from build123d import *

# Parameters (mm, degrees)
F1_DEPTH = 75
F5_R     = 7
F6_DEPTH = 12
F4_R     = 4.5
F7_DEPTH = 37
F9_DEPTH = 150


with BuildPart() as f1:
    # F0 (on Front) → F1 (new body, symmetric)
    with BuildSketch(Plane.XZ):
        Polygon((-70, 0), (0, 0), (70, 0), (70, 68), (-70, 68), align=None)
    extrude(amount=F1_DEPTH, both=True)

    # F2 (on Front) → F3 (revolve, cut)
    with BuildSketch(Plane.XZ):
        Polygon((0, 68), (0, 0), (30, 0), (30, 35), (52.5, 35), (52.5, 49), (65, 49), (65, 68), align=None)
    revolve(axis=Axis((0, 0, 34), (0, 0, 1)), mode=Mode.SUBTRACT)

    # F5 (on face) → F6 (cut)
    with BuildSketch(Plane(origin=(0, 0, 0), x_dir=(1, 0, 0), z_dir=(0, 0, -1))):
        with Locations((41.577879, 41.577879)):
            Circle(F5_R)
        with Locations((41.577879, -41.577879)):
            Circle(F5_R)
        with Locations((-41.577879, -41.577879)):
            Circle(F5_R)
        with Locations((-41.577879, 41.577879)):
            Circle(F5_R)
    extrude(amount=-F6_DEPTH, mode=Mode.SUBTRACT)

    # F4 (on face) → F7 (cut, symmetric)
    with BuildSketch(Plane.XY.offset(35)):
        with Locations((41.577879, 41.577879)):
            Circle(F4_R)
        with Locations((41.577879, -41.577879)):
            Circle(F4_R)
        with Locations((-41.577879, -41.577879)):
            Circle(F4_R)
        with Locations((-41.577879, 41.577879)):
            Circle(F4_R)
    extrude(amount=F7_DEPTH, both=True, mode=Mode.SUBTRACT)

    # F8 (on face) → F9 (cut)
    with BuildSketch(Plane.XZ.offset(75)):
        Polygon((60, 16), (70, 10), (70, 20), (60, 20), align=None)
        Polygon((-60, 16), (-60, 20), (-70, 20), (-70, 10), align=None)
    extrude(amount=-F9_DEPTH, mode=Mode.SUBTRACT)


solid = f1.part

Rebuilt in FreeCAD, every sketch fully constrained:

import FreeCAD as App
import Part
import Sketcher

doc = App.newDocument("Part")
body = doc.addObject("PartDesign::Body", "Body")

# Sketch on XZ plane
sketch1 = body.newObject("Sketcher::SketchObject", "Sketch")
sketch1.AttachmentSupport = (doc.getObject("XZ_Plane"), [""])
sketch1.MapMode = "FlatFace"
sketch1.addGeometry([
    Part.LineSegment(App.Vector(-70, 0, 0), App.Vector(70, 0, 0)),
    Part.LineSegment(App.Vector(70, 0, 0), App.Vector(70, 68, 0)),
    Part.LineSegment(App.Vector(70, 68, 0), App.Vector(-70, 68, 0)),
    Part.LineSegment(App.Vector(-70, 68, 0), App.Vector(-70, 0, 0)),
], False)
sketch1.addConstraint([
    Sketcher.Constraint("Coincident", 0, 2, 1, 1),
    Sketcher.Constraint("Coincident", 1, 2, 2, 1),
    Sketcher.Constraint("Coincident", 2, 2, 3, 1),
    Sketcher.Constraint("Coincident", 3, 2, 0, 1),
    Sketcher.Constraint("Horizontal", 0),
    Sketcher.Constraint("Vertical", 1),
    Sketcher.Constraint("Horizontal", 2),
    Sketcher.Constraint("Vertical", 3),
    Sketcher.Constraint("Symmetric", 0, 2, 3, 2, -1, 1),
    Sketcher.Constraint("DistanceX", 0, 1, 0, 2, 140.0),
    Sketcher.Constraint("DistanceY", 1, 1, 1, 2, 68.0),
])
pad1 = body.newObject("PartDesign::Pad", "Pad")
pad1.Profile = sketch1
pad1.Length = 150
pad1.Midplane = True

# Sketch on XZ plane
sketch2 = body.newObject("Sketcher::SketchObject", "Sketch001")
sketch2.AttachmentSupport = (doc.getObject("XZ_Plane"), [""])
sketch2.MapMode = "FlatFace"
sketch2.addGeometry([
    Part.LineSegment(App.Vector(0, 68, 0), App.Vector(0, 0, 0)),  # 0
    Part.LineSegment(App.Vector(0, 0, 0), App.Vector(30, 0, 0)),  # 1
    Part.LineSegment(App.Vector(30, 0, 0), App.Vector(30, 35, 0)),  # 2
    Part.LineSegment(App.Vector(30, 35, 0), App.Vector(52, 35, 0)),  # 3
    Part.LineSegment(App.Vector(52, 35, 0), App.Vector(52, 49, 0)),  # 4
    Part.LineSegment(App.Vector(52, 49, 0), App.Vector(65, 49, 0)),  # 5
    Part.LineSegment(App.Vector(65, 49, 0), App.Vector(65, 68, 0)),  # 6
    Part.LineSegment(App.Vector(65, 68, 0), App.Vector(0, 68, 0)),  # 7
], False)
sketch2.addConstraint([
    Sketcher.Constraint("Coincident", 0, 2, 1, 1),
    Sketcher.Constraint("Coincident", 1, 2, 2, 1),
    Sketcher.Constraint("Coincident", 2, 2, 3, 1),
    Sketcher.Constraint("Coincident", 3, 2, 4, 1),
    Sketcher.Constraint("Coincident", 4, 2, 5, 1),
    Sketcher.Constraint("Coincident", 5, 2, 6, 1),
    Sketcher.Constraint("Coincident", 6, 2, 7, 1),
    Sketcher.Constraint("Coincident", 7, 2, 0, 1),
    Sketcher.Constraint("Vertical", 0),
    Sketcher.Constraint("Horizontal", 1),
    Sketcher.Constraint("Vertical", 2),
    Sketcher.Constraint("Horizontal", 3),
    Sketcher.Constraint("Vertical", 4),
    Sketcher.Constraint("Horizontal", 5),
    Sketcher.Constraint("Vertical", 6),
    Sketcher.Constraint("Horizontal", 7),
    Sketcher.Constraint("Coincident", 0, 2, -1, 1),
    Sketcher.Constraint("DistanceX", 1, 1, 1, 2, 30.0),
    Sketcher.Constraint("DistanceX", 7, 2, 7, 1, 65.0),
    Sketcher.Constraint("DistanceY", 0, 2, 0, 1, 68.0),
    Sketcher.Constraint("DistanceY", 2, 1, 2, 2, 35.0),
    Sketcher.Constraint("DistanceY", 4, 1, 4, 2, 14.0),
    Sketcher.Constraint("DistanceX", 3, 1, 3, 2, 22.5),
])
groove = body.newObject("PartDesign::Groove", "Groove")
groove.Profile = sketch2
groove.ReferenceAxis = (sketch2, ["V_Axis"])
groove.Angle = 360

# Sketch on XY plane
sketch3 = body.newObject("Sketcher::SketchObject", "Sketch002")
sketch3.AttachmentSupport = (doc.getObject("XY_Plane"), [""])
sketch3.MapMode = "FlatFace"
sketch3.addGeometry([
    Part.Circle(App.Vector(42, -42, 0), App.Vector(0, 0, 1), 7),
    Part.Circle(App.Vector(42, 42, 0), App.Vector(0, 0, 1), 7),
    Part.Circle(App.Vector(-42, 42, 0), App.Vector(0, 0, 1), 7),
    Part.Circle(App.Vector(-42, -42, 0), App.Vector(0, 0, 1), 7),
], False)
sketch3.addConstraint([
    Sketcher.Constraint("Equal", 0, 1),
    Sketcher.Constraint("Equal", 1, 2),
    Sketcher.Constraint("Equal", 2, 3),
    Sketcher.Constraint("Symmetric", 0, 3, 2, 3, -1, 1),
    Sketcher.Constraint("Symmetric", 1, 3, 3, 3, -1, 1),
    Sketcher.Constraint("Symmetric", 1, 3, 2, 3, -2),
    Sketcher.Constraint("Diameter", 0, 14.0),
    Sketcher.Constraint("DistanceX", -1, 1, 0, 3, 41.577879),
    Sketcher.Constraint("DistanceY", 0, 3, -1, 1, 41.577879),
])
pocket1 = body.newObject("PartDesign::Pocket", "Pocket")
pocket1.Profile = sketch3
pocket1.Length = 12
pocket1.Reversed = True

# Sketch on XY plane
sketch4 = body.newObject("Sketcher::SketchObject", "Sketch003")
sketch4.AttachmentSupport = (doc.getObject("XY_Plane"), [""])
sketch4.MapMode = "FlatFace"
sketch4.AttachmentOffset = App.Placement(App.Vector(0, 0, 35), App.Rotation())
sketch4.addGeometry([
    Part.Circle(App.Vector(41.6, 41.6, 0), App.Vector(0, 0, 1), 4.5),
    Part.Circle(App.Vector(41.6, -41.6, 0), App.Vector(0, 0, 1), 4.5),
    Part.Circle(App.Vector(-41.6, -41.6, 0), App.Vector(0, 0, 1), 4.5),
    Part.Circle(App.Vector(-41.6, 41.6, 0), App.Vector(0, 0, 1), 4.5),
], False)
sketch4.addConstraint([
    Sketcher.Constraint("Equal", 0, 1),
    Sketcher.Constraint("Equal", 1, 2),
    Sketcher.Constraint("Equal", 2, 3),
    Sketcher.Constraint("Symmetric", 0, 3, 2, 3, -1, 1),
    Sketcher.Constraint("Symmetric", 1, 3, 3, 3, -1, 1),
    Sketcher.Constraint("Symmetric", 1, 3, 2, 3, -2),
    Sketcher.Constraint("Diameter", 0, 9.0),
    Sketcher.Constraint("DistanceX", -1, 1, 0, 3, 41.577879),
    Sketcher.Constraint("DistanceY", -1, 1, 0, 3, 41.577879),
])
pocket2 = body.newObject("PartDesign::Pocket", "Pocket001")
pocket2.Profile = sketch4
pocket2.Length = 74
pocket2.Midplane = True

# Sketch on XZ plane
sketch5 = body.newObject("Sketcher::SketchObject", "Sketch004")
sketch5.AttachmentSupport = (doc.getObject("XZ_Plane"), [""])
sketch5.MapMode = "FlatFace"
sketch5.AttachmentOffset = App.Placement(App.Vector(0, 0, 75), App.Rotation())
sketch5.addGeometry([
    Part.LineSegment(App.Vector(60, 16, 0), App.Vector(70, 10, 0)),  # 0
    Part.LineSegment(App.Vector(70, 10, 0), App.Vector(70, 20, 0)),  # 1
    Part.LineSegment(App.Vector(70, 20, 0), App.Vector(60, 20, 0)),  # 2
    Part.LineSegment(App.Vector(60, 20, 0), App.Vector(60, 16, 0)),  # 3
    Part.LineSegment(App.Vector(-60, 16, 0), App.Vector(-60, 20, 0)),  # 4
    Part.LineSegment(App.Vector(-60, 20, 0), App.Vector(-70, 20, 0)),  # 5
    Part.LineSegment(App.Vector(-70, 20, 0), App.Vector(-70, 10, 0)),  # 6
    Part.LineSegment(App.Vector(-70, 10, 0), App.Vector(-60, 16, 0)),  # 7
], False)
sketch5.addConstraint([
    Sketcher.Constraint("Coincident", 0, 2, 1, 1),
    Sketcher.Constraint("Coincident", 1, 2, 2, 1),
    Sketcher.Constraint("Coincident", 2, 2, 3, 1),
    Sketcher.Constraint("Coincident", 3, 2, 0, 1),
    Sketcher.Constraint("Coincident", 4, 2, 5, 1),
    Sketcher.Constraint("Coincident", 5, 2, 6, 1),
    Sketcher.Constraint("Coincident", 6, 2, 7, 1),
    Sketcher.Constraint("Coincident", 7, 2, 4, 1),
    Sketcher.Constraint("Vertical", 1),
    Sketcher.Constraint("Horizontal", 2),
    Sketcher.Constraint("Vertical", 3),
    Sketcher.Constraint("Vertical", 4),
    Sketcher.Constraint("Horizontal", 5),
    Sketcher.Constraint("Vertical", 6),
    Sketcher.Constraint("Symmetric", 2, 2, 4, 2, -2),
    Sketcher.Constraint("Symmetric", 0, 2, 6, 2, -2),
    Sketcher.Constraint("Horizontal", 3, 2, 7, 2),
    Sketcher.Constraint("Equal", 5, 1),
    Sketcher.Constraint("DistanceX", 2, 2, 2, 1, 10.0),
    Sketcher.Constraint("DistanceY", 3, 2, 3, 1, 4.0),
    Sketcher.Constraint("DistanceX", -1, 1, 0, 2, 70.0),
    Sketcher.Constraint("DistanceY", -1, 1, 0, 2, 10.0),
])
pocket3 = body.newObject("PartDesign::Pocket", "Pocket002")
pocket3.Profile = sketch5
pocket3.Length = 150

doc.recompute()
